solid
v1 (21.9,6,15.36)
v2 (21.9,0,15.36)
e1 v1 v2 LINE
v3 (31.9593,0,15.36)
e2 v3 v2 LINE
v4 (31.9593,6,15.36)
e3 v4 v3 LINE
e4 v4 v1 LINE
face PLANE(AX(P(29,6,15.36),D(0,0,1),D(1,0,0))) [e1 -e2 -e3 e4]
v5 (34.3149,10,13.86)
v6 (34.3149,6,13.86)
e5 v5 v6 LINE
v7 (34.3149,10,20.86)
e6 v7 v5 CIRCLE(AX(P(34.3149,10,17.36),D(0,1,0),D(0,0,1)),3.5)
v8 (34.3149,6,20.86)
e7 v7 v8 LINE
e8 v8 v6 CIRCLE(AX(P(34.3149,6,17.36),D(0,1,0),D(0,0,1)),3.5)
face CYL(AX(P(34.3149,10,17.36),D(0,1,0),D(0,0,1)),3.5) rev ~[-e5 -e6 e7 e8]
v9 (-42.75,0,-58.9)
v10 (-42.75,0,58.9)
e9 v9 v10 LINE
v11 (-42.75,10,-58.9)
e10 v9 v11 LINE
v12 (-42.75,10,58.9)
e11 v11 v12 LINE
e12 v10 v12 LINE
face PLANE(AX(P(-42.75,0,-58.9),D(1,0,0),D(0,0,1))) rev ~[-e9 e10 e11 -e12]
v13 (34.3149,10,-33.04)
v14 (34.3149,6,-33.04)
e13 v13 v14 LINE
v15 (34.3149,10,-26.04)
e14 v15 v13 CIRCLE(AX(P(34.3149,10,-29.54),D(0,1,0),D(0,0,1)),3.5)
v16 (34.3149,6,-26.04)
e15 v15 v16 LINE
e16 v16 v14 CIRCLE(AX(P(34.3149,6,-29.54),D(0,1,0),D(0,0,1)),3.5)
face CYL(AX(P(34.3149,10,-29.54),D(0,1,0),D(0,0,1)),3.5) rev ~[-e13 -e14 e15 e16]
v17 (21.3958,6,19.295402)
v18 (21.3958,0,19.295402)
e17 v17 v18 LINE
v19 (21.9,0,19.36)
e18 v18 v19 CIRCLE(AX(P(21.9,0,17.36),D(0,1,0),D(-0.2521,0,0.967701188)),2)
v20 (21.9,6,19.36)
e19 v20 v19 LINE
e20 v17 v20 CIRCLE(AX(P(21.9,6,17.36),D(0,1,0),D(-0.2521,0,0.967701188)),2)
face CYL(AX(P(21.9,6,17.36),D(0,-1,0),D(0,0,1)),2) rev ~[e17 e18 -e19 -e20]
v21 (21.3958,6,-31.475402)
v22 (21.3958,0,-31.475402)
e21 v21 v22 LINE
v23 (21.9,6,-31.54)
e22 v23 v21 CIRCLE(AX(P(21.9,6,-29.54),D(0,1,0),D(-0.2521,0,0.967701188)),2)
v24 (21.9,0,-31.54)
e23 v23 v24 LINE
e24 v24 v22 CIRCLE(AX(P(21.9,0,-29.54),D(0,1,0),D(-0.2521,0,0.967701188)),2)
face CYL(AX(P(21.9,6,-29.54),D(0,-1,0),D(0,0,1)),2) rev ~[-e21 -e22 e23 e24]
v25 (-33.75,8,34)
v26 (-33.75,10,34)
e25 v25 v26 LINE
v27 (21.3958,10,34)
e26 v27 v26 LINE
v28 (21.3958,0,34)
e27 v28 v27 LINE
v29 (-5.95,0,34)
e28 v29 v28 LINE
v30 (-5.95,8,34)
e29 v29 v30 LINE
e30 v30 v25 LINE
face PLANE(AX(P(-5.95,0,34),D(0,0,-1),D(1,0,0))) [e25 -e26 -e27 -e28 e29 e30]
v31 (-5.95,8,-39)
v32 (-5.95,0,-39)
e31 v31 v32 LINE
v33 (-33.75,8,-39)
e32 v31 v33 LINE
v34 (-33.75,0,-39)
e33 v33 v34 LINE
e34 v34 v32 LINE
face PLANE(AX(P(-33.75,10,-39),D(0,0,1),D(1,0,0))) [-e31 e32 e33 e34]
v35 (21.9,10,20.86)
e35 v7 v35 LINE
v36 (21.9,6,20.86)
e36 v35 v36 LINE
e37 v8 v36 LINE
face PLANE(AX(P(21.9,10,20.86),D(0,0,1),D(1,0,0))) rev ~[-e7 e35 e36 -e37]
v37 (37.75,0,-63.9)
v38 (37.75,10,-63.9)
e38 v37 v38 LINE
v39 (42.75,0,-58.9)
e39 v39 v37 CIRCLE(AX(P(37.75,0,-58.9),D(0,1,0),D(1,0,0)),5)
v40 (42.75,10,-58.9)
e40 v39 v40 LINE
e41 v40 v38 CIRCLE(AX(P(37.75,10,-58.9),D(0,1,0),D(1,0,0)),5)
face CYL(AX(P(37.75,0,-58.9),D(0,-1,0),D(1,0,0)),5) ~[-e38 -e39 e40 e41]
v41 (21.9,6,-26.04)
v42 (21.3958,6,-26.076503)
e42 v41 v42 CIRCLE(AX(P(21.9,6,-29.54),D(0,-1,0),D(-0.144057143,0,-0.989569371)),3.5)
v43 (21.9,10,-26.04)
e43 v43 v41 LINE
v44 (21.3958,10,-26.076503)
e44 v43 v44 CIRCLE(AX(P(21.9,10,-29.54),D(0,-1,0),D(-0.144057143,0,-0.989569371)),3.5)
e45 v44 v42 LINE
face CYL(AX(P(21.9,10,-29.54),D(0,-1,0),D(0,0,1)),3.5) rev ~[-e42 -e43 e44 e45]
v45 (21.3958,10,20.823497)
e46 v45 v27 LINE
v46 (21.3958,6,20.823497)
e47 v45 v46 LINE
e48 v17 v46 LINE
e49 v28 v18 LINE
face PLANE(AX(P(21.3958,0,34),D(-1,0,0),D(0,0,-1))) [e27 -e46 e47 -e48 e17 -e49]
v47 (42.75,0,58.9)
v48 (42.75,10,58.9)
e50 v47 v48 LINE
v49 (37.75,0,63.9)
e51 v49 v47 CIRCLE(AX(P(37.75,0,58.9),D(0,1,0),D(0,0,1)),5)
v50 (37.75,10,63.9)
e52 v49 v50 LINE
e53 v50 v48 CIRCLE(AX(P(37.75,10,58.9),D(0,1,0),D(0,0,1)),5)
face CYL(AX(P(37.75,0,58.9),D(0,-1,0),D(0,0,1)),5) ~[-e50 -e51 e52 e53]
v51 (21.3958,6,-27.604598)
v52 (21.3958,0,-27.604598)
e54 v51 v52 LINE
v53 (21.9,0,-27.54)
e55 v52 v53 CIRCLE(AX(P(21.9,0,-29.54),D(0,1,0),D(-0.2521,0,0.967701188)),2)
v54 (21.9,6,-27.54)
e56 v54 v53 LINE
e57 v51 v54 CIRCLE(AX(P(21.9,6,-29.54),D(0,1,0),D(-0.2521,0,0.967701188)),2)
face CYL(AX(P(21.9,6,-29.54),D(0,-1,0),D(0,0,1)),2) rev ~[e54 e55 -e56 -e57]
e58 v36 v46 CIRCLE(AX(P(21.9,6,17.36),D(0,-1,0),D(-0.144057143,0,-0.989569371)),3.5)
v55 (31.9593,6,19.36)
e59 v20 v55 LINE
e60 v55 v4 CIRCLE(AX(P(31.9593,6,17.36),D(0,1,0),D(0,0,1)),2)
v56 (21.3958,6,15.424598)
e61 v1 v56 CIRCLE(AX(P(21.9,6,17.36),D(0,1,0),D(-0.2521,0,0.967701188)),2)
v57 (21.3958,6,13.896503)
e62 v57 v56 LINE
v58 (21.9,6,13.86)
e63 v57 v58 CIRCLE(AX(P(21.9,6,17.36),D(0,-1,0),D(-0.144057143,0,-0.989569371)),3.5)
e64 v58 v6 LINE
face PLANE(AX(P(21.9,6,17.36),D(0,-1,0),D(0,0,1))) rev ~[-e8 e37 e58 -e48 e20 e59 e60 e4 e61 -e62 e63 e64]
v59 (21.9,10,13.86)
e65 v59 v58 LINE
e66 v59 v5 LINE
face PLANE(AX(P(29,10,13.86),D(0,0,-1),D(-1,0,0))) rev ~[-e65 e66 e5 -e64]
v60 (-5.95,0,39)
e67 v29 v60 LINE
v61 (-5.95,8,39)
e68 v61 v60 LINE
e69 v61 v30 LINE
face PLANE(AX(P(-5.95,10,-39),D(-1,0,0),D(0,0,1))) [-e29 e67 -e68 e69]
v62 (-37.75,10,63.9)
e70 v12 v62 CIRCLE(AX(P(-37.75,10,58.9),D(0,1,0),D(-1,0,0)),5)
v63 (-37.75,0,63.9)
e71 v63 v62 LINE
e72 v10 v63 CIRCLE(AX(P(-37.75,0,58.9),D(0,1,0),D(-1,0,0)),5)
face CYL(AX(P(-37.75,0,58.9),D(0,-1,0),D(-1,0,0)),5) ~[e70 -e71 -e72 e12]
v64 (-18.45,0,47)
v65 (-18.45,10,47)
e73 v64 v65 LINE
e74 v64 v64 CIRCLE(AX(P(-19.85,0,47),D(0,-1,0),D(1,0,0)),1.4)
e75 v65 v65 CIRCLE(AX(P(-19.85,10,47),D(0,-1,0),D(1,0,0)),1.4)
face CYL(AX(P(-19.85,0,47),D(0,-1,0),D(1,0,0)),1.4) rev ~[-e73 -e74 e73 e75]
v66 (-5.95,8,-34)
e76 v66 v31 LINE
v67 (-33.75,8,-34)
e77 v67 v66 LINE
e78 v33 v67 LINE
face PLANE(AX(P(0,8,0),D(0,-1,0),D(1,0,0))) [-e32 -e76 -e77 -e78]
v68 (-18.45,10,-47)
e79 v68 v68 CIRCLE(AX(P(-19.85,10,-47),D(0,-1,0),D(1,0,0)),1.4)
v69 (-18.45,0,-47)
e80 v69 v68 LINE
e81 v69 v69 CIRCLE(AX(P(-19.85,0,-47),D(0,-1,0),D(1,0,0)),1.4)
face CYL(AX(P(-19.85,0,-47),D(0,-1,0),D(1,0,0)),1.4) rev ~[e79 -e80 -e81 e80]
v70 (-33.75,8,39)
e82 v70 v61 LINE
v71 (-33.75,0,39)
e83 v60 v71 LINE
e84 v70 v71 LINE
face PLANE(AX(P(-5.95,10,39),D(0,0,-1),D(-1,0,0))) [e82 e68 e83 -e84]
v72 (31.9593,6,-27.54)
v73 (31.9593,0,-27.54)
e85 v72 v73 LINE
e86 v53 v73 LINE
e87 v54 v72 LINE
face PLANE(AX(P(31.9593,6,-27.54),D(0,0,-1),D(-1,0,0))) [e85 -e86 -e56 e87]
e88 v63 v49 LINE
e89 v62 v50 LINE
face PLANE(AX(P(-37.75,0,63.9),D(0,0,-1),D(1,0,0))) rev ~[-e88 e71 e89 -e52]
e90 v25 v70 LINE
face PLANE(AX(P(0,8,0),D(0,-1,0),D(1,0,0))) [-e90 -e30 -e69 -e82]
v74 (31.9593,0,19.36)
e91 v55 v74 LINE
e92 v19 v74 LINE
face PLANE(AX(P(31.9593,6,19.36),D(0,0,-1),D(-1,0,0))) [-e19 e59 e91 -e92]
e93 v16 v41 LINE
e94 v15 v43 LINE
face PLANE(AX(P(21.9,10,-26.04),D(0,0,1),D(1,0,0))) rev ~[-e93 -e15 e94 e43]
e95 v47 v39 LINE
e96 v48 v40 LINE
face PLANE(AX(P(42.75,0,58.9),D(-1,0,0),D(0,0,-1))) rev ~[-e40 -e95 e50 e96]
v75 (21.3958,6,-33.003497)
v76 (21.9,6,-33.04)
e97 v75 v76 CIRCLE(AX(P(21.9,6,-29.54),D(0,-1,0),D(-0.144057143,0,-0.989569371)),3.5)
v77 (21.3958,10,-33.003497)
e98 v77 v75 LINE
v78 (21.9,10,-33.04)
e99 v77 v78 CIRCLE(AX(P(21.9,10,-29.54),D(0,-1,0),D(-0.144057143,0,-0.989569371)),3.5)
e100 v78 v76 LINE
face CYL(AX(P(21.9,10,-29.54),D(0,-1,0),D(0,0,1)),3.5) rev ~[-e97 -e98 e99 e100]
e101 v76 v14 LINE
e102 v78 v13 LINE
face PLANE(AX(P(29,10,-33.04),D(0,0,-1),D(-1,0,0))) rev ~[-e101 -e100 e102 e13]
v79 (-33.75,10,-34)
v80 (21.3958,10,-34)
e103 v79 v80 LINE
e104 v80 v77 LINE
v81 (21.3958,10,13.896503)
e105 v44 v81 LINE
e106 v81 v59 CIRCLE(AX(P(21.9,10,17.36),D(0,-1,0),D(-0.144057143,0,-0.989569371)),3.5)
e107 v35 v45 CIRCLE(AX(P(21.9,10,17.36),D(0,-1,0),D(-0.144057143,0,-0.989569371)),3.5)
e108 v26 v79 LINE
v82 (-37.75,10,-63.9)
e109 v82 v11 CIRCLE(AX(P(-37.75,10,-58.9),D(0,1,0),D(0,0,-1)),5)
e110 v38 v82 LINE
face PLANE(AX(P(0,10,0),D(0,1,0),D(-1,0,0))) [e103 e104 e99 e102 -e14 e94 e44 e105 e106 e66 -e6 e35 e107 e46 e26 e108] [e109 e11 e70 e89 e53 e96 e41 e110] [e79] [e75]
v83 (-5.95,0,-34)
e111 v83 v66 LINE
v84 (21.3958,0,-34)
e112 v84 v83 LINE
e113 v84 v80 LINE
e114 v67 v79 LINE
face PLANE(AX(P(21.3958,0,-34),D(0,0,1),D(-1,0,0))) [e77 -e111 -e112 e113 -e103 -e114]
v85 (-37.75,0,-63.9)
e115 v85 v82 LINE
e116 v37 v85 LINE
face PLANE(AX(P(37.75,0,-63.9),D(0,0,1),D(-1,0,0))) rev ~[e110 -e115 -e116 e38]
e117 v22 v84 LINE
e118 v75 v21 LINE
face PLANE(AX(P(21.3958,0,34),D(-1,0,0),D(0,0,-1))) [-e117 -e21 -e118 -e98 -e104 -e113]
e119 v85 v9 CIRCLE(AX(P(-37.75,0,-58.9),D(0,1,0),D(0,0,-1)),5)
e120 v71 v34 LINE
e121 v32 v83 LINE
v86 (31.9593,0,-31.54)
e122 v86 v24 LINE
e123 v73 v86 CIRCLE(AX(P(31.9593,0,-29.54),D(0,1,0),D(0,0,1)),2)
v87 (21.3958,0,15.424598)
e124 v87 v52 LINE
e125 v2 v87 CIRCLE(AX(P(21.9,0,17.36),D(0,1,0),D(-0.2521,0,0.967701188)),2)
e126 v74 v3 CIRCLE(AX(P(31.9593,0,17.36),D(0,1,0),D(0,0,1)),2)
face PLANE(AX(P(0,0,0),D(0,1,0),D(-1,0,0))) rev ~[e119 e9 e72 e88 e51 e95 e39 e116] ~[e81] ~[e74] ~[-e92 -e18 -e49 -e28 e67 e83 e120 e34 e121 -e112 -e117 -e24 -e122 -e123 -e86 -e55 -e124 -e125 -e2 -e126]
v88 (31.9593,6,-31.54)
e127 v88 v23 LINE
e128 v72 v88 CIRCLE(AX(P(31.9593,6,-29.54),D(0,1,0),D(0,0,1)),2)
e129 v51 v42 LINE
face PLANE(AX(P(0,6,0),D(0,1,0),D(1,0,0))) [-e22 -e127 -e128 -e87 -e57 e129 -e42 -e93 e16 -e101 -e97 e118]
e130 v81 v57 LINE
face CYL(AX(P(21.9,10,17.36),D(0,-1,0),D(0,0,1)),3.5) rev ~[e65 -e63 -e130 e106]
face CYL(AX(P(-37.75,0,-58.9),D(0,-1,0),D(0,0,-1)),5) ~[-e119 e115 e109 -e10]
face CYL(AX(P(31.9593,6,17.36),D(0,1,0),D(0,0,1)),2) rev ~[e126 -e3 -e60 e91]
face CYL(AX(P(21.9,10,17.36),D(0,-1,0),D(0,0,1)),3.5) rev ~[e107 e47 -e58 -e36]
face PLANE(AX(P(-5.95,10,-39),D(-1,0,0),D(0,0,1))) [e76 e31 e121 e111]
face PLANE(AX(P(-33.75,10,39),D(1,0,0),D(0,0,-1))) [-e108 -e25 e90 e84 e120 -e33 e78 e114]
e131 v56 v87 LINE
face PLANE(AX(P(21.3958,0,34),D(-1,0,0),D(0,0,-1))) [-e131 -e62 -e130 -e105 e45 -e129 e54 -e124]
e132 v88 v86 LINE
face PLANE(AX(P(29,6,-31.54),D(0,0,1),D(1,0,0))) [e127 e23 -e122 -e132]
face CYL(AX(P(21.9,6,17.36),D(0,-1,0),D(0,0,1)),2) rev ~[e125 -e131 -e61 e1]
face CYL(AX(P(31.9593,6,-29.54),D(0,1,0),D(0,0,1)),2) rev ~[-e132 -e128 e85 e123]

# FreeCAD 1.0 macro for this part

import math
import FreeCAD as App
import Part
import Sketcher


def add_polygon(sketch, points):
    """Adds a closed chain of lines whose ends are joined by coincident constraints."""
    first, n = sketch.GeometryCount, len(points)
    for a, b in zip(points, points[1:] + points[:1]):
        sketch.addGeometry(Part.LineSegment(App.Vector(*a, 0), App.Vector(*b, 0)), False)
    for i in range(n):
        sketch.addConstraint(Sketcher.Constraint("Coincident", first + i, 2, first + (i + 1) % n, 1))

doc = App.newDocument("Part")
params = doc.addObject("Spreadsheet::Sheet", "Params")
for row, (alias, value) in enumerate([
    ("sketch1_radius", "5 mm"),
    ("sketch1_height", "117.8 mm"),
    ("pad1_length", "10 mm"),
    ("sketch2_height", "78 mm"),
    ("sketch2_width", "27.8 mm"),
    ("sketch3_height", "5 mm"),
    ("sketch3_width", "27.8 mm"),
    ("pad2_length", "1 mm"),
    ("sketch4_height", "68 mm"),
    ("sketch5_diameter", "2.8 mm"),
    ("sketch6_diameter", "4 mm"),
    ("hole_diameter", "4 mm"),
    ("hole_cbore_diameter", "7 mm"),
    ("hole_cbore_depth", "4 mm"),
    ("sketch7_radius", "2 mm"),
    ("sketch8_radius", "3.5 mm"),
    ("pocket5_length", "4 mm"),
    ("sketch9_height", "5 mm"),
    ("sketch9_width", "27.8 mm"),
    ("pad3_length", "1 mm"),
], start=1):
    params.set(f"A{row}", alias)
    params.set(f"B{row}", "=" + value)
    params.setAlias(f"B{row}", alias)

body = doc.addObject("PartDesign::Body", "Body")

# Sketch on XZ plane
sketch1 = body.newObject("Sketcher::SketchObject", "Sketch")
sketch1.AttachmentSupport = (doc.getObject("XZ_Plane"), [""])
sketch1.MapMode = "FlatFace"
sketch1.addGeometry([
    Part.ArcOfCircle(Part.Circle(App.Vector(37.75, -58.9, 0), App.Vector(0, 0, 1), 5), math.radians(-90), math.radians(0)),  # 0
    Part.LineSegment(App.Vector(37.75, -63.9, 0), App.Vector(-37.75, -63.9, 0)),  # 1
    Part.ArcOfCircle(Part.Circle(App.Vector(-37.75, -58.9, 0), App.Vector(0, 0, 1), 5), math.radians(180), math.radians(270)),  # 2
    Part.LineSegment(App.Vector(-42.75, -58.9, 0), App.Vector(-42.75, 58.9, 0)),  # 3
    Part.ArcOfCircle(Part.Circle(App.Vector(-37.75, 58.9, 0), App.Vector(0, 0, 1), 5), math.radians(90), math.radians(180)),  # 4
    Part.LineSegment(App.Vector(-37.75, 63.9, 0), App.Vector(37.75, 63.9, 0)),  # 5
    Part.ArcOfCircle(Part.Circle(App.Vector(37.75, 58.9, 0), App.Vector(0, 0, 1), 5), math.radians(0), math.radians(90)),  # 6
    Part.LineSegment(App.Vector(42.75, 58.9, 0), App.Vector(42.75, -58.9, 0)),  # 7
], False)
sketch1.addConstraint([
    Sketcher.Constraint("Tangent", 0, 1, 1, 1),
    Sketcher.Constraint("Tangent", 1, 2, 2, 2),
    Sketcher.Constraint("Tangent", 2, 1, 3, 1),
    Sketcher.Constraint("Tangent", 3, 2, 4, 2),
    Sketcher.Constraint("Tangent", 4, 1, 5, 1),
    Sketcher.Constraint("Tangent", 5, 2, 6, 2),
    Sketcher.Constraint("Tangent", 6, 1, 7, 1),
    Sketcher.Constraint("Tangent", 7, 2, 0, 2),
    Sketcher.Constraint("Horizontal", 1),
    Sketcher.Constraint("Vertical", 3),
    Sketcher.Constraint("Horizontal", 5),
    Sketcher.Constraint("Vertical", 7),
    Sketcher.Constraint("Equal", 0, 2),
    Sketcher.Constraint("Equal", 2, 4),
    Sketcher.Constraint("Equal", 4, 6),
    Sketcher.Constraint("Symmetric", 0, 3, 4, 3, -1, 1),
    Sketcher.Constraint("Radius", 0, 5.0),
    Sketcher.Constraint("DistanceX", 3, 2, 6, 1, 85.5),
    Sketcher.Constraint("DistanceY", 3, 1, 3, 2, 117.8),
])
sketch1.setExpression("Constraints[16]", "Params.sketch1_radius")
sketch1.setExpression("Constraints[18]", "Params.sketch1_height")
pad1 = body.newObject("PartDesign::Pad", "Pad")
pad1.Profile = sketch1
pad1.setExpression("Length", "Params.pad1_length")
pad1.Reversed = True

# Sketch on XZ plane
sketch2 = body.newObject("Sketcher::SketchObject", "Sketch001")
sketch2.AttachmentSupport = (doc.getObject("XZ_Plane"), [""])
sketch2.MapMode = "FlatFace"
sketch2.AttachmentOffset = App.Placement(App.Vector(0, 0, -10), App.Rotation())
add_polygon(sketch2, [(-5.95, 39), (-5.95, -39), (-33.75, -39), (-33.75, 39)])  # lines 0-3
sketch2.addConstraint([
    Sketcher.Constraint("Vertical", 0),
    Sketcher.Constraint("Horizontal", 1),
    Sketcher.Constraint("Vertical", 2),
    Sketcher.Constraint("Horizontal", 3),
    Sketcher.Constraint("DistanceY", 0, 2, 0, 1, 78.0),
    Sketcher.Constraint("DistanceX", 1, 2, 1, 1, 27.8),
    Sketcher.Constraint("DistanceY", 0, 2, -1, 1, 39.0),
    Sketcher.Constraint("DistanceX", 0, 2, -1, 1, 5.95),
])
sketch2.setExpression("Constraints[8]", "Params.sketch2_height")
sketch2.setExpression("Constraints[9]", "Params.sketch2_width")
pocket1 = body.newObject("PartDesign::Pocket", "Pocket")
pocket1.Profile = sketch2
pocket1.Type = "ThroughAll"
pocket1.Reversed = True

# Sketch on XZ plane
sketch3 = body.newObject("Sketcher::SketchObject", "Sketch002")
sketch3.AttachmentSupport = (doc.getObject("XZ_Plane"), [""])
sketch3.MapMode = "FlatFace"
sketch3.AttachmentOffset = App.Placement(App.Vector(0, 0, -10), App.Rotation())
add_polygon(sketch3, [(-33.75, 39), (-5.95, 39), (-5.95, 34), (-33.75, 34)])  # lines 0-3
add_polygon(sketch3, [(-33.75, -34), (-5.95, -34), (-5.95, -39), (-33.75, -39)])  # lines 4-7
sketch3.addConstraint([
    Sketcher.Constraint("Horizontal", 0),
    Sketcher.Constraint("Vertical", 1),
    Sketcher.Constraint("Horizontal", 2),
    Sketcher.Constraint("Vertical", 3),
    Sketcher.Constraint("Horizontal", 4),
    Sketcher.Constraint("Vertical", 5),
    Sketcher.Constraint("Horizontal", 6),
    Sketcher.Constraint("Vertical", 7),
    Sketcher.Constraint("Symmetric", 1, 2, 4, 2, -1),
    Sketcher.Constraint("Symmetric", 3, 2, 6, 2, -1),
    Sketcher.Constraint("DistanceY", 1, 2, 1, 1, 5.0),
    Sketcher.Constraint("DistanceX", 0, 1, 0, 2, 27.8),
    Sketcher.Constraint("DistanceY", -1, 1, 0, 2, 39.0),
    Sketcher.Constraint("DistanceX", 0, 2, -1, 1, 5.95),
])
sketch3.setExpression("Constraints[18]", "Params.sketch3_height")
sketch3.setExpression("Constraints[19]", "Params.sketch3_width")
pad2 = body.newObject("PartDesign::Pad", "Pad001")
pad2.Profile = sketch3
pad2.setExpression("Length", "Params.pad2_length")

# Sketch on XZ plane
sketch4 = body.newObject("Sketcher::SketchObject", "Sketch003")
sketch4.AttachmentSupport = (doc.getObject("XZ_Plane"), [""])
sketch4.MapMode = "FlatFace"
add_polygon(sketch4, [(21.3958, 34), (-5.95, 34), (-5.95, -34), (21.3958, -34)])  # lines 0-3
sketch4.addConstraint([
    Sketcher.Constraint("Horizontal", 0),
    Sketcher.Constraint("Vertical", 1),
    Sketcher.Constraint("Horizontal", 2),
    Sketcher.Constraint("Vertical", 3),
    Sketcher.Constraint("DistanceY", 1, 2, 1, 1, 68.0),
    Sketcher.Constraint("DistanceY", -1, 1, 0, 2, 34.0),
    Sketcher.Constraint("DistanceX", 0, 2, -1, 1, 5.95),
    Sketcher.Constraint("DistanceX", 0, 2, 0, 1, 27.3458),
])
sketch4.setExpression("Constraints[8]", "Params.sketch4_height")
pocket2 = body.newObject("PartDesign::Pocket", "Pocket001")
pocket2.Profile = sketch4
pocket2.Type = "ThroughAll"

# Sketch on XZ plane
sketch5 = body.newObject("Sketcher::SketchObject", "Sketch004")
sketch5.AttachmentSupport = (doc.getObject("XZ_Plane"), [""])
sketch5.MapMode = "FlatFace"
sketch5.addGeometry([
    Part.Circle(App.Vector(-19.85, -47, 0), App.Vector(0, 0, 1), 1.4),
    Part.Circle(App.Vector(-19.85, 47, 0), App.Vector(0, 0, 1), 1.4),
], False)
sketch5.addConstraint([
    Sketcher.Constraint("Equal", 0, 1),
    Sketcher.Constraint("Symmetric", 0, 3, 1, 3, -1),
    Sketcher.Constraint("Diameter", 0, 2.8),
    Sketcher.Constraint("DistanceY", 0, 3, -1, 1, 47.0),
    Sketcher.Constraint("DistanceX", 0, 3, -1, 1, 19.85),
])
sketch5.setExpression("Constraints[2]", "Params.sketch5_diameter")
pocket3 = body.newObject("PartDesign::Pocket", "Pocket002")
pocket3.Profile = sketch5
pocket3.Type = "ThroughAll"

# Sketch on XZ plane
sketch6 = body.newObject("Sketcher::SketchObject", "Sketch005")
sketch6.AttachmentSupport = (doc.getObject("XZ_Plane"), [""])
sketch6.MapMode = "FlatFace"
sketch6.AttachmentOffset = App.Placement(App.Vector(0, 0, -10), App.Rotation())
sketch6.addGeometry([
    Part.Circle(App.Vector(29, 17.36, 0), App.Vector(0, 0, 1), 2),
    Part.Circle(App.Vector(29, -29.54, 0), App.Vector(0, 0, 1), 2),
    Part.Circle(App.Vector(21.9, -29.54, 0), App.Vector(0, 0, 1), 2),
    Part.Circle(App.Vector(21.9, 17.36, 0), App.Vector(0, 0, 1), 2),
], False)
sketch6.addConstraint([
    Sketcher.Constraint("Equal", 0, 1),
    Sketcher.Constraint("Equal", 1, 2),
    Sketcher.Constraint("Equal", 2, 3),
    Sketcher.Constraint("Horizontal", 1, 3, 2, 3),
    Sketcher.Constraint("Horizontal", 0, 3, 3, 3),
    Sketcher.Constraint("Vertical", 0, 3, 1, 3),
    Sketcher.Constraint("Vertical", 2, 3, 3, 3),
    Sketcher.Constraint("Diameter", 0, 4.0),
    Sketcher.Constraint("DistanceX", -1, 1, 0, 3, 29.0),
    Sketcher.Constraint("DistanceX", -1, 1, 2, 3, 21.9),
    Sketcher.Constraint("DistanceY", 1, 3, 0, 3, 46.9),
    Sketcher.Constraint("DistanceY", -1, 1, 0, 3, 17.36),
])
sketch6.setExpression("Constraints[7]", "Params.sketch6_diameter")
doc.recompute()
hole = body.newObject("PartDesign::Hole", "Hole")
hole.Profile = sketch6
hole.ThreadType = "None"
hole.setExpression("Diameter", "Params.hole_diameter")
hole.DepthType = "ThroughAll"
hole.HoleCutType = "Counterbore"
hole.setExpression("HoleCutDiameter", "Params.hole_cbore_diameter")
hole.setExpression("HoleCutDepth", "Params.hole_cbore_depth")
hole.Reversed = True

# Sketch on XZ plane
sketch7 = body.newObject("Sketcher::SketchObject", "Sketch006")
sketch7.AttachmentSupport = (doc.getObject("XZ_Plane"), [""])
sketch7.MapMode = "FlatFace"
sketch7.AttachmentOffset = App.Placement(App.Vector(0, 0, -6), App.Rotation())
sketch7.addGeometry([
    Part.ArcOfCircle(Part.Circle(App.Vector(31.9593, -29.54, 0), App.Vector(0, 0, 1), 2), math.radians(-90), math.radians(90)),  # 0
    Part.LineSegment(App.Vector(31.9593, -31.54, 0), App.Vector(21.9, -31.54, 0)),  # 1
    Part.ArcOfCircle(Part.Circle(App.Vector(21.9, -29.54, 0), App.Vector(0, 0, 1), 1.999998), math.radians(90), math.radians(270)),  # 2
    Part.LineSegment(App.Vector(21.9, -27.54, 0), App.Vector(31.9593, -27.54, 0)),  # 3
    Part.ArcOfCircle(Part.Circle(App.Vector(31.9593, 17.36, 0), App.Vector(0, 0, 1), 2), math.radians(-90), math.radians(90)),  # 4
    Part.LineSegment(App.Vector(31.9593, 15.36, 0), App.Vector(21.9, 15.36, 0)),  # 5
    Part.ArcOfCircle(Part.Circle(App.Vector(21.9, 17.36, 0), App.Vector(0, 0, 1), 1.999998), math.radians(90), math.radians(270)),  # 6
    Part.LineSegment(App.Vector(21.9, 19.36, 0), App.Vector(31.9593, 19.36, 0)),  # 7
], False)
sketch7.addConstraint([
    Sketcher.Constraint("Tangent", 0, 1, 1, 1),
    Sketcher.Constraint("Tangent", 1, 2, 2, 2),
    Sketcher.Constraint("Tangent", 2, 1, 3, 1),
    Sketcher.Constraint("Tangent", 3, 2, 0, 2),
    Sketcher.Constraint("Tangent", 4, 1, 5, 1),
    Sketcher.Constraint("Tangent", 5, 2, 6, 2),
    Sketcher.Constraint("Tangent", 6, 1, 7, 1),
    Sketcher.Constraint("Tangent", 7, 2, 4, 2),
    Sketcher.Constraint("Horizontal", 1),
    Sketcher.Constraint("Horizontal", 3),
    Sketcher.Constraint("Horizontal", 5),
    Sketcher.Constraint("Horizontal", 7),
    Sketcher.Constraint("Equal", 2, 4),
    Sketcher.Constraint("Vertical", 0, 3, 4, 3),
    Sketcher.Constraint("Vertical", 2, 3, 6, 3),
    Sketcher.Constraint("Radius", 0, 2.0),
    Sketcher.Constraint("DistanceX", -1, 1, 2, 3, 21.9),
    Sketcher.Constraint("DistanceY", 0, 3, 4, 3, 46.9),
    Sketcher.Constraint("DistanceY", 0, 3, -1, 1, 29.54),
    Sketcher.Constraint("DistanceX", 1, 2, 1, 1, 10.0593),
])
sketch7.setExpression("Constraints[15]", "Params.sketch7_radius")
pocket4 = body.newObject("PartDesign::Pocket", "Pocket003")
pocket4.Profile = sketch7
pocket4.Type = "ThroughAll"
pocket4.Reversed = True

# Sketch on XZ plane
sketch8 = body.newObject("Sketcher::SketchObject", "Sketch007")
sketch8.AttachmentSupport = (doc.getObject("XZ_Plane"), [""])
sketch8.MapMode = "FlatFace"
sketch8.AttachmentOffset = App.Placement(App.Vector(0, 0, -10), App.Rotation())
sketch8.addGeometry([
    Part.LineSegment(App.Vector(21.9, -26.04, 0), App.Vector(34.3149, -26.04, 0)),  # 0
    Part.ArcOfCircle(Part.Circle(App.Vector(34.3149, -29.54, 0), App.Vector(0, 0, 1), 3.5), math.radians(-90), math.radians(90)),  # 1
    Part.LineSegment(App.Vector(34.3149, -33.04, 0), App.Vector(21.9, -33.04, 0)),  # 2
    Part.ArcOfCircle(Part.Circle(App.Vector(21.9, -29.54, 0), App.Vector(0, 0, 1), 3.500007), math.radians(90), math.radians(270)),  # 3
    Part.ArcOfCircle(Part.Circle(App.Vector(21.9, 17.36, 0), App.Vector(0, 0, 1), 3.500007), math.radians(90), math.radians(270)),  # 4
    Part.LineSegment(App.Vector(21.9, 20.86, 0), App.Vector(34.3149, 20.86, 0)),  # 5
    Part.ArcOfCircle(Part.Circle(App.Vector(34.3149, 17.36, 0), App.Vector(0, 0, 1), 3.5), math.radians(-90), math.radians(90)),  # 6
    Part.LineSegment(App.Vector(34.3149, 13.86, 0), App.Vector(21.9, 13.86, 0)),  # 7
], False)
sketch8.addConstraint([
    Sketcher.Constraint("Tangent", 0, 2, 1, 2),
    Sketcher.Constraint("Tangent", 1, 1, 2, 1),
    Sketcher.Constraint("Tangent", 2, 2, 3, 2),
    Sketcher.Constraint("Tangent", 3, 1, 0, 1),
    Sketcher.Constraint("Tangent", 4, 1, 5, 1),
    Sketcher.Constraint("Tangent", 5, 2, 6, 2),
    Sketcher.Constraint("Tangent", 6, 1, 7, 1),
    Sketcher.Constraint("Tangent", 7, 2, 4, 2),
    Sketcher.Constraint("Horizontal", 0),
    Sketcher.Constraint("Horizontal", 2),
    Sketcher.Constraint("Horizontal", 5),
    Sketcher.Constraint("Horizontal", 7),
    Sketcher.Constraint("Equal", 3, 4),
    Sketcher.Constraint("Vertical", 3, 3, 4, 3),
    Sketcher.Constraint("Vertical", 1, 3, 6, 3),
    Sketcher.Constraint("Radius", 1, 3.5),
    Sketcher.Constraint("DistanceX", -1, 1, 3, 3, 21.9),
    Sketcher.Constraint("DistanceY", 3, 3, 4, 3, 46.9),
    Sketcher.Constraint("DistanceX", 0, 1, 0, 2, 12.415),
    Sketcher.Constraint("DistanceY", 1, 3, -1, 1, 29.54),
])
sketch8.setExpression("Constraints[15]", "Params.sketch8_radius")
pocket5 = body.newObject("PartDesign::Pocket", "Pocket004")
pocket5.Profile = sketch8
pocket5.setExpression("Length", "Params.pocket5_length")
pocket5.Reversed = True

# Sketch on XZ plane
sketch9 = body.newObject("Sketcher::SketchObject", "Sketch008")
sketch9.AttachmentSupport = (doc.getObject("XZ_Plane"), [""])
sketch9.MapMode = "FlatFace"
sketch9.AttachmentOffset = App.Placement(App.Vector(0, 0, -9), App.Rotation())
add_polygon(sketch9, [(-33.75, 34), (-5.95, 34), (-5.95, 39), (-33.75, 39)])  # lines 0-3
add_polygon(sketch9, [(-5.95, -34), (-33.75, -34), (-33.75, -39), (-5.95, -39)])  # lines 4-7
sketch9.addConstraint([
    Sketcher.Constraint("Horizontal", 0),
    Sketcher.Constraint("Vertical", 1),
    Sketcher.Constraint("Horizontal", 2),
    Sketcher.Constraint("Vertical", 3),
    Sketcher.Constraint("Horizontal", 4),
    Sketcher.Constraint("Vertical", 5),
    Sketcher.Constraint("Horizontal", 6),
    Sketcher.Constraint("Vertical", 7),
    Sketcher.Constraint("Symmetric", 3, 2, 4, 2, -1),
    Sketcher.Constraint("Symmetric", 1, 2, 6, 2, -1),
    Sketcher.Constraint("DistanceY", 1, 1, 1, 2, 5.0),
    Sketcher.Constraint("DistanceX", 0, 1, 0, 2, 27.8),
    Sketcher.Constraint("DistanceY", -1, 1, 0, 2, 34.0),
    Sketcher.Constraint("DistanceX", 0, 2, -1, 1, 5.95),
])
sketch9.setExpression("Constraints[18]", "Params.sketch9_height")
sketch9.setExpression("Constraints[19]", "Params.sketch9_width")
pad3 = body.newObject("PartDesign::Pad", "Pad002")
pad3.Profile = sketch9
pad3.setExpression("Length", "Params.pad3_length")

doc.recompute()
